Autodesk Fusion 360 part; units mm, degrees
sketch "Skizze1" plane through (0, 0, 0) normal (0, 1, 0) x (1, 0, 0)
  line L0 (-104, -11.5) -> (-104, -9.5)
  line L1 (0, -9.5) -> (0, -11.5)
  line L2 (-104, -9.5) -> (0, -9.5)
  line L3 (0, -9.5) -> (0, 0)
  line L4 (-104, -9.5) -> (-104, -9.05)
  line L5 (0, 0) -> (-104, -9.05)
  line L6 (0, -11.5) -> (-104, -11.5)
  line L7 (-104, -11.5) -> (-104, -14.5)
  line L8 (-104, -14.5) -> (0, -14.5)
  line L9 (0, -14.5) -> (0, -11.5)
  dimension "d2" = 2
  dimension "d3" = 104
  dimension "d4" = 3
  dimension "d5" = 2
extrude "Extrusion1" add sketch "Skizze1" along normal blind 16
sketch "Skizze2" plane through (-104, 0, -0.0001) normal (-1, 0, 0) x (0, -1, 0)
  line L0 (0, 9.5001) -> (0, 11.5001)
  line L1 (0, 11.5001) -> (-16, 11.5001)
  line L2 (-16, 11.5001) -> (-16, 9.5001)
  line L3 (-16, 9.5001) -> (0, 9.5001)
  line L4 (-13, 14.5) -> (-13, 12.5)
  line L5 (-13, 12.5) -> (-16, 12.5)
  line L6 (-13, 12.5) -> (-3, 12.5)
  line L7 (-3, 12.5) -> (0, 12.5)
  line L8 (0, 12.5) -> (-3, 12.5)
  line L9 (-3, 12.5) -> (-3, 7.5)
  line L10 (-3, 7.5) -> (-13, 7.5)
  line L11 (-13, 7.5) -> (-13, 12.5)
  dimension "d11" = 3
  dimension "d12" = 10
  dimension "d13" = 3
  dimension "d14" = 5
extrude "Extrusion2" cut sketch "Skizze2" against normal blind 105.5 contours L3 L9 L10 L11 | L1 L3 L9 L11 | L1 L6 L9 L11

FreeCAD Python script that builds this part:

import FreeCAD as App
import Part
import Sketcher

doc = App.newDocument("Part")
body = doc.addObject("PartDesign::Body", "Body")

# Sketch on XZ plane
sketch1 = body.newObject("Sketcher::SketchObject", "Sketch")
sketch1.AttachmentSupport = (doc.getObject("XZ_Plane"), [""])
sketch1.MapMode = "FlatFace"
sketch1.addGeometry([
    Part.LineSegment(App.Vector(-104, 14, 0), App.Vector(0, 14, 0)),
    Part.LineSegment(App.Vector(0, 14, 0), App.Vector(0, 0, 0)),
    Part.LineSegment(App.Vector(0, 0, 0), App.Vector(-104, 9, 0)),
    Part.LineSegment(App.Vector(-104, 9, 0), App.Vector(-104, 14, 0)),
], False)
sketch1.addConstraint([
    Sketcher.Constraint("Coincident", 0, 2, 1, 1),
    Sketcher.Constraint("Coincident", 1, 2, 2, 1),
    Sketcher.Constraint("Coincident", 2, 2, 3, 1),
    Sketcher.Constraint("Coincident", 3, 2, 0, 1),
    Sketcher.Constraint("Horizontal", 0),
    Sketcher.Constraint("Vertical", 1),
    Sketcher.Constraint("Vertical", 3),
    Sketcher.Constraint("Coincident", 1, 2, -1, 1),
    Sketcher.Constraint("DistanceX", 0, 1, 0, 2, 104.0),
    Sketcher.Constraint("DistanceY", 1, 2, 1, 1, 14.5),
    Sketcher.Constraint("DistanceY", 3, 1, 3, 2, 5.45),
])
pad1 = body.newObject("PartDesign::Pad", "Pad")
pad1.Profile = sketch1
pad1.Length = 16
pad1.Reversed = True

# Sketch on YZ plane
sketch2 = body.newObject("Sketcher::SketchObject", "Sketch001")
sketch2.AttachmentSupport = (doc.getObject("YZ_Plane"), [""])
sketch2.MapMode = "FlatFace"
sketch2.AttachmentOffset = App.Placement(App.Vector(0, 0, -104), App.Rotation())
sketch2.addGeometry([
    Part.LineSegment(App.Vector(3, 7, 0), App.Vector(3, 12, 0)),
    Part.LineSegment(App.Vector(3, 12, 0), App.Vector(13, 12, 0)),
    Part.LineSegment(App.Vector(13, 12, 0), App.Vector(13, 7, 0)),
    Part.LineSegment(App.Vector(13, 7, 0), App.Vector(3, 7, 0)),
], False)
sketch2.addConstraint([
    Sketcher.Constraint("Coincident", 0, 2, 1, 1),
    Sketcher.Constraint("Coincident", 1, 2, 2, 1),
    Sketcher.Constraint("Coincident", 2, 2, 3, 1),
    Sketcher.Constraint("Coincident", 3, 2, 0, 1),
    Sketcher.Constraint("Vertical", 0),
    Sketcher.Constraint("Horizontal", 1),
    Sketcher.Constraint("Vertical", 2),
    Sketcher.Constraint("Horizontal", 3),
    Sketcher.Constraint("DistanceX", 1, 1, 1, 2, 10.0),
    Sketcher.Constraint("DistanceY", 0, 1, 0, 2, 5.0),
    Sketcher.Constraint("DistanceX", -1, 1, 0, 2, 3.0),
    Sketcher.Constraint("DistanceY", -1, 1, 0, 2, 12.5),
])
pocket1 = body.newObject("PartDesign::Pocket", "Pocket")
pocket1.Profile = sketch2
pocket1.Length = 105.5
pocket1.Reversed = True

doc.recompute()
